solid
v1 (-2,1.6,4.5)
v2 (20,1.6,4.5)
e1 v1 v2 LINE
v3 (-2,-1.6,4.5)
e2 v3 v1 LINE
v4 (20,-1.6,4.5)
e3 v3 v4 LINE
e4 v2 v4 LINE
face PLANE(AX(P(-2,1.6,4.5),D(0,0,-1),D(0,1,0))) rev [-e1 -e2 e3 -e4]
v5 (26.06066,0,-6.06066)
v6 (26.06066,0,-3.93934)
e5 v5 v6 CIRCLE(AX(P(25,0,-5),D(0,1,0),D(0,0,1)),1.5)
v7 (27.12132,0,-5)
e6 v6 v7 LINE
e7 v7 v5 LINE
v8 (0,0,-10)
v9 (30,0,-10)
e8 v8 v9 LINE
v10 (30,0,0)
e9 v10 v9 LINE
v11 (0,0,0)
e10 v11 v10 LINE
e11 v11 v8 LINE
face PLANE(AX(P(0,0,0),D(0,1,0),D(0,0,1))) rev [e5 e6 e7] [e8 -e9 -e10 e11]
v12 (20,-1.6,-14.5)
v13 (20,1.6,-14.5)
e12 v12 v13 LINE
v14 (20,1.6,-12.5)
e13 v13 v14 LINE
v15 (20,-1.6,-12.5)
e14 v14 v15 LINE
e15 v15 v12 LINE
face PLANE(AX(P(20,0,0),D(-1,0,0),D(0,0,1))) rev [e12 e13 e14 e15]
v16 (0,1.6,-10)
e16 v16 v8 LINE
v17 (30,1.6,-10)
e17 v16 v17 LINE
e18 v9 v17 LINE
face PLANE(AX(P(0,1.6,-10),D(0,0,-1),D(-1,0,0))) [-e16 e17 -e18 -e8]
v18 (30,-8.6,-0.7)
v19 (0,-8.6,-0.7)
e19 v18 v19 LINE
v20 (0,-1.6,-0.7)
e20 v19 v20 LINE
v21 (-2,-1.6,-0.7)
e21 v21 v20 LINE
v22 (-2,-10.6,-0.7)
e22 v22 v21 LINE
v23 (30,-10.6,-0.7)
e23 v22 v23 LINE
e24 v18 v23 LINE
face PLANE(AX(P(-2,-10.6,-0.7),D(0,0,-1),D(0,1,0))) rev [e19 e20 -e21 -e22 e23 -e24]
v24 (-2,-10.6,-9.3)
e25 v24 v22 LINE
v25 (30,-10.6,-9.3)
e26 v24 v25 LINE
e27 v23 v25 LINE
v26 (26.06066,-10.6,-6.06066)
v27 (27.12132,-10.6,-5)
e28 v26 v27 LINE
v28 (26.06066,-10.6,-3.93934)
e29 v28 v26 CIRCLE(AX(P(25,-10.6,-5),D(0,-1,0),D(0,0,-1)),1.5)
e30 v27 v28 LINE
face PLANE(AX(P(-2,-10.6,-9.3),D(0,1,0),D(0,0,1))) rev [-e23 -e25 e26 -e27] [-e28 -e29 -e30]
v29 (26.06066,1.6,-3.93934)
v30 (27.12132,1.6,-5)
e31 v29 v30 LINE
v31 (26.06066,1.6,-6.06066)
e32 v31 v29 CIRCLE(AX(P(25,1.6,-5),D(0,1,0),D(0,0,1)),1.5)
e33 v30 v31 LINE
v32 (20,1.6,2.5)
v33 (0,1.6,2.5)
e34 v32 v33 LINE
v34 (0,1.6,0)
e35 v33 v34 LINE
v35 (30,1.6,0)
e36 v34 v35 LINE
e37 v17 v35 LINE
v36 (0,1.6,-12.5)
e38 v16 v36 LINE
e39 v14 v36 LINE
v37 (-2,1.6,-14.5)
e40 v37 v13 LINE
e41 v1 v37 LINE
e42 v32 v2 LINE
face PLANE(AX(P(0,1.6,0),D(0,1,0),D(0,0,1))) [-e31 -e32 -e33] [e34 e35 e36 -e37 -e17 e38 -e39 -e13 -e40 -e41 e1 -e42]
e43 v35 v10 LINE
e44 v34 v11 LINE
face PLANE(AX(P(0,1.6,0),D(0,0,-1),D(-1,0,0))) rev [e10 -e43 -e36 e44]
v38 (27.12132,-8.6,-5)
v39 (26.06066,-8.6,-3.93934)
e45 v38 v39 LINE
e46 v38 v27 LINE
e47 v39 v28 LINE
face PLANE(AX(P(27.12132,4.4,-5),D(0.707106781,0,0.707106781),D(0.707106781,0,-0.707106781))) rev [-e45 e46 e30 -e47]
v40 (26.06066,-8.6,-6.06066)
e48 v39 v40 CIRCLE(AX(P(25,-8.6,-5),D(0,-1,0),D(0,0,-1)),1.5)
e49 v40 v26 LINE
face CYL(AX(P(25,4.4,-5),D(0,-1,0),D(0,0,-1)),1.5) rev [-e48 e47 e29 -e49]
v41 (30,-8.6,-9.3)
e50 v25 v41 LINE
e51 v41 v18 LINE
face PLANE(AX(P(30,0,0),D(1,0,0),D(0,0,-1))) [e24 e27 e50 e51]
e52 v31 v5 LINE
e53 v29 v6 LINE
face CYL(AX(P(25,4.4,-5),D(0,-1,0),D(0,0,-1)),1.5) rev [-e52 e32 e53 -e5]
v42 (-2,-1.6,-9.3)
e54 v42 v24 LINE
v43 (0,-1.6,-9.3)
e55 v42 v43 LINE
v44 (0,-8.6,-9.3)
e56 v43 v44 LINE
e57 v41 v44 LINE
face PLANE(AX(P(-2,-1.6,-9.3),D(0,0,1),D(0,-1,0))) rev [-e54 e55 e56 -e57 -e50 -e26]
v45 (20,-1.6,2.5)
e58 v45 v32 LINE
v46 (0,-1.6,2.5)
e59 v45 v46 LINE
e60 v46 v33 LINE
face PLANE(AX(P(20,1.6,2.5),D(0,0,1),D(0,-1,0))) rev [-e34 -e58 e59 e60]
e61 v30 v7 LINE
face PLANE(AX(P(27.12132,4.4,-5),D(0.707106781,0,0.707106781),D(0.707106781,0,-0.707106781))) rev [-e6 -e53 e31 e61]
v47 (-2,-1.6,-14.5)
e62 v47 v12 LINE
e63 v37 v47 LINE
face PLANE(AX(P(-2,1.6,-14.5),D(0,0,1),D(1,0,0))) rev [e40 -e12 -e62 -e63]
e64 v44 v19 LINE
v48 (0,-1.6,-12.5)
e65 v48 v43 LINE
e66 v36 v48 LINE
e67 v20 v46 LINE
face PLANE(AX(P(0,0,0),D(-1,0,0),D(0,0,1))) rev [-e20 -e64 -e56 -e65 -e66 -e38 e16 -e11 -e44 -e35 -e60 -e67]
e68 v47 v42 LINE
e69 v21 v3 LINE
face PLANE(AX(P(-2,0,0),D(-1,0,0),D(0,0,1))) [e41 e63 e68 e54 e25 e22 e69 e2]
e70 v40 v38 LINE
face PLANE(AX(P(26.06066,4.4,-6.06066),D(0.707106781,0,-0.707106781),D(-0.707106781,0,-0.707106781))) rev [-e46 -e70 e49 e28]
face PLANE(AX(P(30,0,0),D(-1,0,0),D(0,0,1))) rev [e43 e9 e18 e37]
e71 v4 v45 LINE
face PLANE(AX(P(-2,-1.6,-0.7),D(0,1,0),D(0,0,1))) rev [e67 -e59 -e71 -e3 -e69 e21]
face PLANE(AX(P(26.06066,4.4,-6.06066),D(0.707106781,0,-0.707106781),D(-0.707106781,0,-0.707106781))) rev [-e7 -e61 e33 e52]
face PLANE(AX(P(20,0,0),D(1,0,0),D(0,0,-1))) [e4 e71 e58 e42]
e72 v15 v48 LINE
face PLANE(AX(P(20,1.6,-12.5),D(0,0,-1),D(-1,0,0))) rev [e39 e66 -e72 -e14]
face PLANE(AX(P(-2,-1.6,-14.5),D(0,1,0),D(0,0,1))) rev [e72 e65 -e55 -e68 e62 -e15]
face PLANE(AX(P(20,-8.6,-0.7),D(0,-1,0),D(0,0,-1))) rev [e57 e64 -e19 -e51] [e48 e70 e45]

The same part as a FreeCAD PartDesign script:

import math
import FreeCAD as App
import Part
import Sketcher
from FreeCAD import Vector
Q = App.Units.Quantity

doc = App.newDocument("Part")
body = doc.addObject("PartDesign::Body", "Body")

# Sketch on XZ plane
sketch1 = body.newObject("Sketcher::SketchObject", "Sketch")
sketch1.AttachmentSupport = (doc.getObject("XZ_Plane"), [""])
sketch1.MapMode = "FlatFace"
sketch1.addGeometry([
    Part.LineSegment(Vector(0, -10, 0), Vector(0, 0, 0)),
    Part.LineSegment(Vector(0, 0, 0), Vector(20, 0, 0)),
    Part.LineSegment(Vector(20, 0, 0), Vector(20, -10, 0)),
    Part.LineSegment(Vector(20, -10, 0), Vector(0, -10, 0)),
], False)
sketch1.addConstraint([
    Sketcher.Constraint("Coincident", 0, 2, 1, 1),
    Sketcher.Constraint("Coincident", 1, 2, 2, 1),
    Sketcher.Constraint("Coincident", 2, 2, 3, 1),
    Sketcher.Constraint("Coincident", 3, 2, 0, 1),
    Sketcher.Constraint("Vertical", 0),
    Sketcher.Constraint("Horizontal", 1),
    Sketcher.Constraint("Vertical", 2),
    Sketcher.Constraint("Horizontal", 3),
    Sketcher.Constraint("Coincident", 0, 2, -1, 1),
    Sketcher.Constraint("DistanceX", 1, 1, 1, 2, Q("20 mm")),
    Sketcher.Constraint("DistanceY", 0, 1, 0, 2, Q("10 mm")),
])
pad1 = body.newObject("PartDesign::Pad", "Pad")
pad1.Profile = sketch1
pad1.Length = 1.6
pad1.Reversed = True

# Sketch on YZ plane
sketch2 = body.newObject("Sketcher::SketchObject", "Sketch001")
sketch2.AttachmentSupport = (doc.getObject("YZ_Plane"), [""])
sketch2.MapMode = "FlatFace"
sketch2.addGeometry([
    Part.LineSegment(Vector(1.6, 4.5, 0), Vector(1.6, -14.5, 0)),  # 0
    Part.LineSegment(Vector(1.6, -14.5, 0), Vector(-1.6, -14.5, 0)),  # 1
    Part.LineSegment(Vector(-1.6, -14.5, 0), Vector(-1.6, -9.3, 0)),  # 2
    Part.LineSegment(Vector(-1.6, -9.3, 0), Vector(-10.6, -9.3, 0)),  # 3
    Part.LineSegment(Vector(-10.6, -9.3, 0), Vector(-10.6, -0.7, 0)),  # 4
    Part.LineSegment(Vector(-10.6, -0.7, 0), Vector(-1.6, -0.7, 0)),  # 5
    Part.LineSegment(Vector(-1.6, -0.7, 0), Vector(-1.6, 4.5, 0)),  # 6
    Part.LineSegment(Vector(-1.6, 4.5, 0), Vector(1.6, 4.5, 0)),  # 7
], False)
sketch2.addConstraint([
    Sketcher.Constraint("Coincident", 0, 2, 1, 1),
    Sketcher.Constraint("Coincident", 1, 2, 2, 1),
    Sketcher.Constraint("Coincident", 2, 2, 3, 1),
    Sketcher.Constraint("Coincident", 3, 2, 4, 1),
    Sketcher.Constraint("Coincident", 4, 2, 5, 1),
    Sketcher.Constraint("Coincident", 5, 2, 6, 1),
    Sketcher.Constraint("Coincident", 6, 2, 7, 1),
    Sketcher.Constraint("Coincident", 7, 2, 0, 1),
    Sketcher.Constraint("Vertical", 0),
    Sketcher.Constraint("Horizontal", 1),
    Sketcher.Constraint("Vertical", 2),
    Sketcher.Constraint("Horizontal", 3),
    Sketcher.Constraint("Vertical", 4),
    Sketcher.Constraint("Horizontal", 5),
    Sketcher.Constraint("Vertical", 6),
    Sketcher.Constraint("Horizontal", 7),
    Sketcher.Constraint("Vertical", 2, 2, 5, 2),
    Sketcher.Constraint("Equal", 2, 6),
    Sketcher.Constraint("DistanceX", 3, 2, 3, 1, Q("9 mm")),
    Sketcher.Constraint("DistanceY", 0, 2, 0, 1, Q("19 mm")),
    Sketcher.Constraint("DistanceX", 1, 2, 1, 1, Q("3.2 mm")),
    Sketcher.Constraint("DistanceY", 2, 1, 2, 2, Q("5.2 mm")),
    Sketcher.Constraint("DistanceX", -1, 1, 0, 2, Q("1.6 mm")),
    Sketcher.Constraint("DistanceY", 0, 2, -1, 1, Q("14.5 mm")),
])
pad2 = body.newObject("PartDesign::Pad", "Pad001")
pad2.Profile = sketch2
pad2.Length = 2
pad2.Reversed = True

# Sketch on YZ plane
sketch3 = body.newObject("Sketcher::SketchObject", "Sketch002")
sketch3.AttachmentSupport = (doc.getObject("YZ_Plane"), [""])
sketch3.MapMode = "FlatFace"
sketch3.addGeometry([
    Part.LineSegment(Vector(1.6, 4.5, 0), Vector(-1.6, 4.5, 0)),  # 0
    Part.LineSegment(Vector(-1.6, 4.5, 0), Vector(-1.6, 2.5, 0)),  # 1
    Part.LineSegment(Vector(-1.6, 2.5, 0), Vector(1.6, 2.5, 0)),  # 2
    Part.LineSegment(Vector(1.6, 2.5, 0), Vector(1.6, 4.5, 0)),  # 3
    Part.LineSegment(Vector(1.6, -12.5, 0), Vector(-1.6, -12.5, 0)),  # 4
    Part.LineSegment(Vector(-1.6, -12.5, 0), Vector(-1.6, -14.5, 0)),  # 5
    Part.LineSegment(Vector(-1.6, -14.5, 0), Vector(1.6, -14.5, 0)),  # 6
    Part.LineSegment(Vector(1.6, -14.5, 0), Vector(1.6, -12.5, 0)),  # 7
    Part.LineSegment(Vector(-8.6, -0.7, 0), Vector(-10.6, -0.7, 0)),  # 8
    Part.LineSegment(Vector(-10.6, -0.7, 0), Vector(-10.6, -9.3, 0)),  # 9
    Part.LineSegment(Vector(-10.6, -9.3, 0), Vector(-8.6, -9.3, 0)),  # 10
    Part.LineSegment(Vector(-8.6, -9.3, 0), Vector(-8.6, -0.7, 0)),  # 11
], False)
sketch3.addConstraint([
    Sketcher.Constraint("Coincident", 0, 2, 1, 1),
    Sketcher.Constraint("Coincident", 1, 2, 2, 1),
    Sketcher.Constraint("Coincident", 2, 2, 3, 1),
    Sketcher.Constraint("Coincident", 3, 2, 0, 1),
    Sketcher.Constraint("Coincident", 4, 2, 5, 1),
    Sketcher.Constraint("Coincident", 5, 2, 6, 1),
    Sketcher.Constraint("Coincident", 6, 2, 7, 1),
    Sketcher.Constraint("Coincident", 7, 2, 4, 1),
    Sketcher.Constraint("Coincident", 8, 2, 9, 1),
    Sketcher.Constraint("Coincident", 9, 2, 10, 1),
    Sketcher.Constraint("Coincident", 10, 2, 11, 1),
    Sketcher.Constraint("Coincident", 11, 2, 8, 1),
    Sketcher.Constraint("Horizontal", 0),
    Sketcher.Constraint("Vertical", 1),
    Sketcher.Constraint("Horizontal", 2),
    Sketcher.Constraint("Vertical", 3),
    Sketcher.Constraint("Horizontal", 4),
    Sketcher.Constraint("Vertical", 5),
    Sketcher.Constraint("Horizontal", 6),
    Sketcher.Constraint("Vertical", 7),
    Sketcher.Constraint("Horizontal", 8),
    Sketcher.Constraint("Vertical", 9),
    Sketcher.Constraint("Horizontal", 10),
    Sketcher.Constraint("Vertical", 11),
    Sketcher.Constraint("Vertical", 1, 2, 4, 2),
    Sketcher.Constraint("Vertical", 3, 2, 6, 2),
    Sketcher.Constraint("Equal", 10, 1),
    Sketcher.Constraint("Equal", 3, 5),
    Sketcher.Constraint("DistanceX", 8, 2, 8, 1, Q("2 mm")),
    Sketcher.Constraint("DistanceX", 0, 2, 0, 1, Q("3.2 mm")),
    Sketcher.Constraint("DistanceY", 9, 2, 9, 1, Q("8.6 mm")),
    Sketcher.Constraint("DistanceY", 4, 2, 1, 2, Q("15 mm")),
    Sketcher.Constraint("DistanceX", 8, 2, 1, 2, Q("9 mm")),
    Sketcher.Constraint("DistanceX", 0, 2, -1, 1, Q("1.6 mm")),
    Sketcher.Constraint("DistanceY", -1, 1, 0, 2, Q("4.5 mm")),
    Sketcher.Constraint("DistanceY", 8, 2, -1, 1, Q("0.7 mm")),
])
pad3 = body.newObject("PartDesign::Pad", "Pad002")
pad3.Profile = sketch3
pad3.Length = 20

# Sketch on YZ plane
sketch4 = body.newObject("Sketcher::SketchObject", "Sketch003")
sketch4.AttachmentSupport = (doc.getObject("YZ_Plane"), [""])
sketch4.MapMode = "FlatFace"
sketch4.AttachmentOffset = App.Placement(Vector(0, 0, 20), App.Rotation())
sketch4.addGeometry([
    Part.LineSegment(Vector(-8.6, -0.7, 0), Vector(-10.6, -0.7, 0)),  # 0
    Part.LineSegment(Vector(-10.6, -0.7, 0), Vector(-10.6, -9.3, 0)),  # 1
    Part.LineSegment(Vector(-10.6, -9.3, 0), Vector(-8.6, -9.3, 0)),  # 2
    Part.LineSegment(Vector(-8.6, -9.3, 0), Vector(-8.6, -0.7, 0)),  # 3
    Part.LineSegment(Vector(1.6, 0, 0), Vector(0, 0, 0)),  # 4
    Part.LineSegment(Vector(0, 0, 0), Vector(0, -10, 0)),  # 5
    Part.LineSegment(Vector(0, -10, 0), Vector(1.6, -10, 0)),  # 6
    Part.LineSegment(Vector(1.6, -10, 0), Vector(1.6, 0, 0)),  # 7
], False)
sketch4.addConstraint([
    Sketcher.Constraint("Coincident", 0, 2, 1, 1),
    Sketcher.Constraint("Coincident", 1, 2, 2, 1),
    Sketcher.Constraint("Coincident", 2, 2, 3, 1),
    Sketcher.Constraint("Coincident", 3, 2, 0, 1),
    Sketcher.Constraint("Coincident", 4, 2, 5, 1),
    Sketcher.Constraint("Coincident", 5, 2, 6, 1),
    Sketcher.Constraint("Coincident", 6, 2, 7, 1),
    Sketcher.Constraint("Coincident", 7, 2, 4, 1),
    Sketcher.Constraint("Horizontal", 0),
    Sketcher.Constraint("Vertical", 1),
    Sketcher.Constraint("Horizontal", 2),
    Sketcher.Constraint("Vertical", 3),
    Sketcher.Constraint("Horizontal", 4),
    Sketcher.Constraint("Vertical", 5),
    Sketcher.Constraint("Horizontal", 6),
    Sketcher.Constraint("Vertical", 7),
    Sketcher.Constraint("Coincident", 4, 2, -1, 1),
    Sketcher.Constraint("DistanceX", 0, 2, 0, 1, Q("2 mm")),
    Sketcher.Constraint("DistanceY", 5, 2, 5, 1, Q("10 mm")),
    Sketcher.Constraint("DistanceX", 4, 2, 4, 1, Q("1.6 mm")),
    Sketcher.Constraint("DistanceY", 1, 2, 1, 1, Q("8.6 mm")),
    Sketcher.Constraint("DistanceX", 0, 2, -1, 1, Q("10.6 mm")),
    Sketcher.Constraint("DistanceY", 0, 2, -1, 1, Q("0.7 mm")),
])
pad4 = body.newObject("PartDesign::Pad", "Pad003")
pad4.Profile = sketch4
pad4.Length = 10

# Sketch on XZ plane
sketch5 = body.newObject("Sketcher::SketchObject", "Sketch004")
sketch5.AttachmentSupport = (doc.getObject("XZ_Plane"), [""])
sketch5.MapMode = "FlatFace"
sketch5.AttachmentOffset = App.Placement(Vector(0, 0, 10.6), App.Rotation())
sketch5.addGeometry([
    Part.LineSegment(Vector(26.06066, -6.06066, 0), Vector(27.12132, -5, 0)),
    Part.LineSegment(Vector(27.12132, -5, 0), Vector(26.06066, -3.93934, 0)),
    Part.ArcOfCircle(Part.Circle(Vector(25, -5, 0), Vector(0, 0, 1), 1.5), math.radians(45), math.radians(315)),
], False)
sketch5.addConstraint([
    Sketcher.Constraint("Coincident", 0, 2, 1, 1),
    Sketcher.Constraint("Tangent", 1, 2, 2, 1),
    Sketcher.Constraint("Tangent", 2, 2, 0, 1),
    Sketcher.Constraint("Perpendicular", 0, 1),
    Sketcher.Constraint("Horizontal", 2, 3, 0, 2),
    Sketcher.Constraint("Radius", 2, Q("1.5 mm")),
    Sketcher.Constraint("DistanceX", -1, 1, 2, 3, Q("25 mm")),
    Sketcher.Constraint("DistanceY", 2, 3, -1, 1, Q("5 mm")),
])
pocket1 = body.newObject("PartDesign::Pocket", "Pocket")
pocket1.Profile = sketch5
pocket1.Length = 15

doc.recompute()
